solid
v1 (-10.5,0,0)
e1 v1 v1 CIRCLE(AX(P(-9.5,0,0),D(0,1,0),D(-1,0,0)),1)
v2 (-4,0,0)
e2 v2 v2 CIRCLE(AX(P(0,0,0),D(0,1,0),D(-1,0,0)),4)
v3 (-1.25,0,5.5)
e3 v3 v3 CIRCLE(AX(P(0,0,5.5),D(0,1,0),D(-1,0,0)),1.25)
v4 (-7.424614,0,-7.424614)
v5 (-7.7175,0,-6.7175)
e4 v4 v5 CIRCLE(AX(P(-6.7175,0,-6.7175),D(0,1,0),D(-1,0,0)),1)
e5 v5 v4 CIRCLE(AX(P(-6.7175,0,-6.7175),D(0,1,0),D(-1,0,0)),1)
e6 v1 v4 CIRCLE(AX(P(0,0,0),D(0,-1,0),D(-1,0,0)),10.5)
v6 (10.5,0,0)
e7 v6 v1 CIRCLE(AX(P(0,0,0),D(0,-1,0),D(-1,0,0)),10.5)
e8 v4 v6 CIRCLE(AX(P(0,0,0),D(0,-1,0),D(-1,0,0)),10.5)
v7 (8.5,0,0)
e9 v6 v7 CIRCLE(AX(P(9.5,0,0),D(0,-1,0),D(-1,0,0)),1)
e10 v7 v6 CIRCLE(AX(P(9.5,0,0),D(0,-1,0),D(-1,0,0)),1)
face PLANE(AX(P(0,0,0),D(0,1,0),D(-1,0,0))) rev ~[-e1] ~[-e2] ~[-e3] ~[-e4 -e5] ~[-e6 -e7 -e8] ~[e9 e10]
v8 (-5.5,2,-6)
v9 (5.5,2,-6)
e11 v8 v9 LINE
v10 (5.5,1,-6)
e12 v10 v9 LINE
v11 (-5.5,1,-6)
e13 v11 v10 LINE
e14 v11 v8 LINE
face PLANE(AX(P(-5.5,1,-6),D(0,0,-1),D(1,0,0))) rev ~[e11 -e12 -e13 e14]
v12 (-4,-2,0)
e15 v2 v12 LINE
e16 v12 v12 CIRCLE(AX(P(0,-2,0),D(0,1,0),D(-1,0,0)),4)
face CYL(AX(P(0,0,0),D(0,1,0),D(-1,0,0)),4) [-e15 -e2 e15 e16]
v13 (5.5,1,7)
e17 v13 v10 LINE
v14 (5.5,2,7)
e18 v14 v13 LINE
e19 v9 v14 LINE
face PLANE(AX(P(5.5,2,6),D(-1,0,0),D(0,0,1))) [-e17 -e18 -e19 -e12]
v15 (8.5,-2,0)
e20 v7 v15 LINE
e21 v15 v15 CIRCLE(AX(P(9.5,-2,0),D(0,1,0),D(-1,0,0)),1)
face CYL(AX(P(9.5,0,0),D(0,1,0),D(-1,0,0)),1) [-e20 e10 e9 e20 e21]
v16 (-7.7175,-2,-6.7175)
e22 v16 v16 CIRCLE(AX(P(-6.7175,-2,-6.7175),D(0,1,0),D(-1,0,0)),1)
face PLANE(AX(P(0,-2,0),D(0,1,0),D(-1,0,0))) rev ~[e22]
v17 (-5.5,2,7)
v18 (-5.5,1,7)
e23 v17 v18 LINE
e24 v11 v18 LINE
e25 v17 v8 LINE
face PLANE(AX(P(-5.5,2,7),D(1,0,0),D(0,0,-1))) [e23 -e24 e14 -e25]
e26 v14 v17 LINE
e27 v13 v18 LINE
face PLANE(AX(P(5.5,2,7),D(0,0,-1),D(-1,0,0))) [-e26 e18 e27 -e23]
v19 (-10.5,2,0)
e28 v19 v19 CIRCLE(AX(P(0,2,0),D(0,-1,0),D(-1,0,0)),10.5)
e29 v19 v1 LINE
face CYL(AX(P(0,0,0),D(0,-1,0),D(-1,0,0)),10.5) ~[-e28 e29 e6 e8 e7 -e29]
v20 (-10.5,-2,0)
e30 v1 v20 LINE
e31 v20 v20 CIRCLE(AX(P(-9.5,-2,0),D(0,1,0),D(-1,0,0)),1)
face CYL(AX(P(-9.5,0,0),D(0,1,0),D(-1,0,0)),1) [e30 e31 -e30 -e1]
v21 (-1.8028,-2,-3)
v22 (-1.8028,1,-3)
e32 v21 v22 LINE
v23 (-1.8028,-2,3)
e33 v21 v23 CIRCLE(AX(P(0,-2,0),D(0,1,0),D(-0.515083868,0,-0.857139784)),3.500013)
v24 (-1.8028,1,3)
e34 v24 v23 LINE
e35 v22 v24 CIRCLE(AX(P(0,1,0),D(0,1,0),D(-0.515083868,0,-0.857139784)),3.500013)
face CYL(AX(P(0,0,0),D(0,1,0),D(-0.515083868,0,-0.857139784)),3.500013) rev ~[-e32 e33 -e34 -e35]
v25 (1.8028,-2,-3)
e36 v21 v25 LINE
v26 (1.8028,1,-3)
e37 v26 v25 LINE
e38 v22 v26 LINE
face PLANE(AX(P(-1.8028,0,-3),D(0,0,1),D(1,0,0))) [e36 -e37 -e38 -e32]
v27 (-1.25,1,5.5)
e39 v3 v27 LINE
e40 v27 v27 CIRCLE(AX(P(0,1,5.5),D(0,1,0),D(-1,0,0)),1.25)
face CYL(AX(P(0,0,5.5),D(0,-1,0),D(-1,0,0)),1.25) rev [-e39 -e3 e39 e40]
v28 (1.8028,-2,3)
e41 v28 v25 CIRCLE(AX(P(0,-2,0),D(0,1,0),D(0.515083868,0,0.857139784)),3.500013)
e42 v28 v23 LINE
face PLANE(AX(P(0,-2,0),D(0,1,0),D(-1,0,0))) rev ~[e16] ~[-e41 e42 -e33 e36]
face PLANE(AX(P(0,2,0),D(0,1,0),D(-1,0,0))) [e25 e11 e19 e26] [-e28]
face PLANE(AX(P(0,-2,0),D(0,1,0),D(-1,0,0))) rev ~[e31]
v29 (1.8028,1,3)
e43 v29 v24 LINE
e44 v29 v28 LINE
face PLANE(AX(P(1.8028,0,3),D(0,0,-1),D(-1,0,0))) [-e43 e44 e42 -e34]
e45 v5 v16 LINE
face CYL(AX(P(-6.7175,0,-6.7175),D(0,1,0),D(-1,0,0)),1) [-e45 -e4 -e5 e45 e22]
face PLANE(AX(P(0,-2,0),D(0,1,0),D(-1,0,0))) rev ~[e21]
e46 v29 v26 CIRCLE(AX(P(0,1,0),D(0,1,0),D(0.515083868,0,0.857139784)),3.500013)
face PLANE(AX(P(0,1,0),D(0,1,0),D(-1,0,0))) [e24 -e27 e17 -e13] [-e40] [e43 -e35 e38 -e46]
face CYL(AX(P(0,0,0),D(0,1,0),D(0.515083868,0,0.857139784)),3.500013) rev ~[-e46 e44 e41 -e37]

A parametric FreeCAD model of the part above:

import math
import FreeCAD as App
import Part
import Sketcher
from FreeCAD import Vector
Q = App.Units.Quantity

doc = App.newDocument("Part")
body = doc.addObject("PartDesign::Body", "Body")

# Sketch on XZ plane
sketch1 = doc.addObject("Sketcher::SketchObject", "Sketch")
body.addObject(sketch1)
sketch1.AttachmentSupport = (doc.XZ_Plane, [""])
sketch1.MapMode = "FlatFace"
sketch1.addGeometry(Part.Circle(Vector(0, 0, 0), Vector(0, 0, 1), 10.5), False)
sketch1.addGeometry(Part.Circle(Vector(0, 5.5, 0), Vector(0, 0, 1), 1.2), False)
sketch1.addGeometry(Part.LineSegment(Vector(-1.8, -3, 0), Vector(1.8, -3, 0)), False)
sketch1.addGeometry(Part.ArcOfCircle(Part.Circle(Vector(0, 0, 0), Vector(0, 0, 1), 3.5), math.radians(-59), math.radians(59)), False)
sketch1.addGeometry(Part.LineSegment(Vector(1.8, 3, 0), Vector(-1.8, 3, 0)), False)
sketch1.addGeometry(Part.ArcOfCircle(Part.Circle(Vector(0, 0, 0), Vector(0, 0, 1), 3.5), math.radians(121), math.radians(239)), False)
sketch1.addConstraint(Sketcher.Constraint("Coincident", 2, 2, 3, 1))
sketch1.addConstraint(Sketcher.Constraint("Coincident", 3, 2, 4, 1))
sketch1.addConstraint(Sketcher.Constraint("Coincident", 4, 2, 5, 1))
sketch1.addConstraint(Sketcher.Constraint("Coincident", 5, 2, 2, 1))
sketch1.addConstraint(Sketcher.Constraint("Horizontal", 2))
sketch1.addConstraint(Sketcher.Constraint("Horizontal", 4))
sketch1.addConstraint(Sketcher.Constraint("Coincident", 0, 3, -1, 1))
sketch1.addConstraint(Sketcher.Constraint("Coincident", 3, 3, -1, 1))
sketch1.addConstraint(Sketcher.Constraint("Coincident", 5, 3, -1, 1))
sketch1.addConstraint(Sketcher.Constraint("Equal", 3, 5))
sketch1.addConstraint(Sketcher.Constraint("PointOnObject", 1, 3, -2))
sketch1.addConstraint(Sketcher.Constraint("Vertical", 2, 2, 3, 2))
sketch1.addConstraint(Sketcher.Constraint("Diameter", 0, Q("21 mm")))
sketch1.addConstraint(Sketcher.Constraint("Diameter", 1, Q("2.5 mm")))
sketch1.addConstraint(Sketcher.Constraint("DistanceY", 2, 2, 3, 2, Q("6 mm")))
sketch1.addConstraint(Sketcher.Constraint("Radius", 3, Q("3.5 mm")))
sketch1.addConstraint(Sketcher.Constraint("DistanceY", 3, 2, 1, 3, Q("2.5 mm")))
pad1 = doc.addObject("PartDesign::Pad", "Pad")
body.addObject(pad1)
pad1.Profile = sketch1
pad1.Length = 1
pad1.Reversed = True

# Sketch on XZ plane
sketch2 = doc.addObject("Sketcher::SketchObject", "Sketch001")
body.addObject(sketch2)
sketch2.AttachmentSupport = (doc.XZ_Plane, [""])
sketch2.MapMode = "FlatFace"
sketch2.AttachmentOffset = App.Placement(Vector(0, 0, -1), App.Rotation())
sketch2.addGeometry(Part.Circle(Vector(0, 0, 0), Vector(0, 0, 1), 10.5), False)
sketch2.addGeometry(Part.LineSegment(Vector(-5.5, 6, 0), Vector(-5.5, -6, 0)), False)
sketch2.addGeometry(Part.LineSegment(Vector(-5.5, -6, 0), Vector(5.5, -6, 0)), False)
sketch2.addGeometry(Part.LineSegment(Vector(5.5, -6, 0), Vector(5.5, 6, 0)), False)
sketch2.addGeometry(Part.LineSegment(Vector(5.5, 6, 0), Vector(1.1, 6, 0)), False)
sketch2.addGeometry(Part.ArcOfCircle(Part.Circle(Vector(0, 5.5, 0), Vector(0, 0, 1), 1.2), math.radians(24), math.radians(156)), False)
sketch2.addGeometry(Part.LineSegment(Vector(-1.1, 6, 0), Vector(-5.5, 6, 0)), False)
sketch2.addConstraint(Sketcher.Constraint("Coincident", 1, 2, 2, 1))
sketch2.addConstraint(Sketcher.Constraint("Coincident", 2, 2, 3, 1))
sketch2.addConstraint(Sketcher.Constraint("Coincident", 3, 2, 4, 1))
sketch2.addConstraint(Sketcher.Constraint("Coincident", 4, 2, 5, 1))
sketch2.addConstraint(Sketcher.Constraint("Coincident", 5, 2, 6, 1))
sketch2.addConstraint(Sketcher.Constraint("Coincident", 6, 2, 1, 1))
sketch2.addConstraint(Sketcher.Constraint("Vertical", 1))
sketch2.addConstraint(Sketcher.Constraint("Horizontal", 2))
sketch2.addConstraint(Sketcher.Constraint("Vertical", 3))
sketch2.addConstraint(Sketcher.Constraint("Horizontal", 4))
sketch2.addConstraint(Sketcher.Constraint("Horizontal", 6))
sketch2.addConstraint(Sketcher.Constraint("Coincident", 0, 3, -1, 1))
sketch2.addConstraint(Sketcher.Constraint("Symmetric", 1, 2, 3, 2, -1, 1))
sketch2.addConstraint(Sketcher.Constraint("Symmetric", 4, 2, 5, 2, -2))
sketch2.addConstraint(Sketcher.Constraint("Diameter", 0, Q("21 mm")))
sketch2.addConstraint(Sketcher.Constraint("DistanceX", 2, 1, 2, 2, Q("11 mm")))
sketch2.addConstraint(Sketcher.Constraint("DistanceY", 1, 2, 1, 1, Q("12 mm")))
sketch2.addConstraint(Sketcher.Constraint("Radius", 5, Q("1.25 mm")))
sketch2.addConstraint(Sketcher.Constraint("DistanceY", -1, 1, 5, 3, Q("5.5 mm")))
pad2 = doc.addObject("PartDesign::Pad", "Pad001")
body.addObject(pad2)
pad2.Profile = sketch2
pad2.Length = 1
pad2.Reversed = True

# Sketch on XZ plane
sketch3 = doc.addObject("Sketcher::SketchObject", "Sketch002")
body.addObject(sketch3)
sketch3.AttachmentSupport = (doc.XZ_Plane, [""])
sketch3.MapMode = "FlatFace"
sketch3.addGeometry(Part.Circle(Vector(0, 0, 0), Vector(0, 0, 1), 4), False)
sketch3.addGeometry(Part.ArcOfCircle(Part.Circle(Vector(0, 0, 0), Vector(0, 0, 1), 3.5), math.radians(121), math.radians(239)), False)
sketch3.addGeometry(Part.LineSegment(Vector(-1.8, -3, 0), Vector(1.8, -3, 0)), False)
sketch3.addGeometry(Part.ArcOfCircle(Part.Circle(Vector(0, 0, 0), Vector(0, 0, 1), 3.5), math.radians(-59), math.radians(59)), False)
sketch3.addGeometry(Part.LineSegment(Vector(1.8, 3, 0), Vector(-1.8, 3, 0)), False)
sketch3.addConstraint(Sketcher.Constraint("Coincident", 1, 2, 2, 1))
sketch3.addConstraint(Sketcher.Constraint("Coincident", 2, 2, 3, 1))
sketch3.addConstraint(Sketcher.Constraint("Coincident", 3, 2, 4, 1))
sketch3.addConstraint(Sketcher.Constraint("Coincident", 4, 2, 1, 1))
sketch3.addConstraint(Sketcher.Constraint("Horizontal", 2))
sketch3.addConstraint(Sketcher.Constraint("Horizontal", 4))
sketch3.addConstraint(Sketcher.Constraint("Coincident", 0, 3, -1, 1))
sketch3.addConstraint(Sketcher.Constraint("Coincident", 1, 3, -1, 1))
sketch3.addConstraint(Sketcher.Constraint("Coincident", 3, 3, -1, 1))
sketch3.addConstraint(Sketcher.Constraint("Equal", 1, 3))
sketch3.addConstraint(Sketcher.Constraint("Vertical", 2, 2, 3, 2))
sketch3.addConstraint(Sketcher.Constraint("Diameter", 0, Q("8 mm")))
sketch3.addConstraint(Sketcher.Constraint("DistanceY", 2, 2, 3, 2, Q("6 mm")))
sketch3.addConstraint(Sketcher.Constraint("Radius", 1, Q("3.5 mm")))
pad3 = doc.addObject("PartDesign::Pad", "Pad002")
body.addObject(pad3)
pad3.Profile = sketch3
pad3.Length = 2

# Sketch on XZ plane
sketch4 = doc.addObject("Sketcher::SketchObject", "Sketch003")
body.addObject(sketch4)
sketch4.AttachmentSupport = (doc.XZ_Plane, [""])
sketch4.MapMode = "FlatFace"
sketch4.addGeometry(Part.Circle(Vector(9.5, 0, 0), Vector(0, 0, 1), 1), False)
sketch4.addGeometry(Part.Circle(Vector(-9.5, 0, 0), Vector(0, 0, 1), 1), False)
sketch4.addConstraint(Sketcher.Constraint("Equal", 0, 1))
sketch4.addConstraint(Sketcher.Constraint("Symmetric", 0, 3, 1, 3, -1, 1))
sketch4.addConstraint(Sketcher.Constraint("PointOnObject", 0, 3, -1))
sketch4.addConstraint(Sketcher.Constraint("Diameter", 0, Q("2 mm")))
sketch4.addConstraint(Sketcher.Constraint("DistanceX", 1, 3, 0, 3, Q("19 mm")))
pad4 = doc.addObject("PartDesign::Pad", "Pad003")
body.addObject(pad4)
pad4.Profile = sketch4
pad4.Length = 2

# Sketch on XZ plane
sketch5 = doc.addObject("Sketcher::SketchObject", "Sketch004")
body.addObject(sketch5)
sketch5.AttachmentSupport = (doc.XZ_Plane, [""])
sketch5.MapMode = "FlatFace"
sketch5.AttachmentOffset = App.Placement(Vector(0, 0, -2), App.Rotation())
sketch5.addGeometry(Part.ArcOfCircle(Part.Circle(Vector(0, 5.5, 0), Vector(0, 0, 1), 1.2), math.radians(24), math.radians(156)), False)
sketch5.addGeometry(Part.LineSegment(Vector(-1.1, 6, 0), Vector(-5.5, 6, 0)), False)
sketch5.addGeometry(Part.LineSegment(Vector(-5.5, 6, 0), Vector(-5.5, 7, 0)), False)
sketch5.addGeometry(Part.LineSegment(Vector(-5.5, 7, 0), Vector(5.5, 7, 0)), False)
sketch5.addGeometry(Part.LineSegment(Vector(5.5, 7, 0), Vector(5.5, 6, 0)), False)
sketch5.addGeometry(Part.LineSegment(Vector(5.5, 6, 0), Vector(1.1, 6, 0)), False)
sketch5.addConstraint(Sketcher.Constraint("Coincident", 0, 2, 1, 1))
sketch5.addConstraint(Sketcher.Constraint("Coincident", 1, 2, 2, 1))
sketch5.addConstraint(Sketcher.Constraint("Coincident", 2, 2, 3, 1))
sketch5.addConstraint(Sketcher.Constraint("Coincident", 3, 2, 4, 1))
sketch5.addConstraint(Sketcher.Constraint("Coincident", 4, 2, 5, 1))
sketch5.addConstraint(Sketcher.Constraint("Coincident", 5, 2, 0, 1))
sketch5.addConstraint(Sketcher.Constraint("Horizontal", 1))
sketch5.addConstraint(Sketcher.Constraint("Vertical", 2))
sketch5.addConstraint(Sketcher.Constraint("Horizontal", 3))
sketch5.addConstraint(Sketcher.Constraint("Vertical", 4))
sketch5.addConstraint(Sketcher.Constraint("Horizontal", 5))
sketch5.addConstraint(Sketcher.Constraint("Symmetric", 1, 2, 4, 2, -2))
sketch5.addConstraint(Sketcher.Constraint("PointOnObject", 0, 3, -2))
sketch5.addConstraint(Sketcher.Constraint("DistanceX", 3, 1, 3, 2, Q("11 mm")))
sketch5.addConstraint(Sketcher.Constraint("DistanceY", 2, 1, 2, 2, Q("1 mm")))
sketch5.addConstraint(Sketcher.Constraint("Radius", 0, Q("1.25 mm")))
sketch5.addConstraint(Sketcher.Constraint("DistanceY", -1, 1, 0, 2, Q("6 mm")))
sketch5.addConstraint(Sketcher.Constraint("DistanceY", -1, 1, 0, 3, Q("5.5 mm")))
pocket1 = doc.addObject("PartDesign::Pocket", "Pocket")
body.addObject(pocket1)
pocket1.Profile = sketch5
pocket1.Length = 1
pocket1.Reversed = True

# Sketch on XZ plane
sketch6 = doc.addObject("Sketcher::SketchObject", "Sketch005")
body.addObject(sketch6)
sketch6.AttachmentSupport = (doc.XZ_Plane, [""])
sketch6.MapMode = "FlatFace"
sketch6.addGeometry(Part.Circle(Vector(-6.7, -6.7, 0), Vector(0, 0, 1), 1), False)
sketch6.addConstraint(Sketcher.Constraint("Diameter", 0, Q("2 mm")))
sketch6.addConstraint(Sketcher.Constraint("DistanceX", 0, 3, -1, 1, Q("6.7175 mm")))
sketch6.addConstraint(Sketcher.Constraint("DistanceY", 0, 3, -1, 1, Q("6.7175 mm")))
pad5 = doc.addObject("PartDesign::Pad", "Pad004")
body.addObject(pad5)
pad5.Profile = sketch6
pad5.Length = 2

doc.recompute()
